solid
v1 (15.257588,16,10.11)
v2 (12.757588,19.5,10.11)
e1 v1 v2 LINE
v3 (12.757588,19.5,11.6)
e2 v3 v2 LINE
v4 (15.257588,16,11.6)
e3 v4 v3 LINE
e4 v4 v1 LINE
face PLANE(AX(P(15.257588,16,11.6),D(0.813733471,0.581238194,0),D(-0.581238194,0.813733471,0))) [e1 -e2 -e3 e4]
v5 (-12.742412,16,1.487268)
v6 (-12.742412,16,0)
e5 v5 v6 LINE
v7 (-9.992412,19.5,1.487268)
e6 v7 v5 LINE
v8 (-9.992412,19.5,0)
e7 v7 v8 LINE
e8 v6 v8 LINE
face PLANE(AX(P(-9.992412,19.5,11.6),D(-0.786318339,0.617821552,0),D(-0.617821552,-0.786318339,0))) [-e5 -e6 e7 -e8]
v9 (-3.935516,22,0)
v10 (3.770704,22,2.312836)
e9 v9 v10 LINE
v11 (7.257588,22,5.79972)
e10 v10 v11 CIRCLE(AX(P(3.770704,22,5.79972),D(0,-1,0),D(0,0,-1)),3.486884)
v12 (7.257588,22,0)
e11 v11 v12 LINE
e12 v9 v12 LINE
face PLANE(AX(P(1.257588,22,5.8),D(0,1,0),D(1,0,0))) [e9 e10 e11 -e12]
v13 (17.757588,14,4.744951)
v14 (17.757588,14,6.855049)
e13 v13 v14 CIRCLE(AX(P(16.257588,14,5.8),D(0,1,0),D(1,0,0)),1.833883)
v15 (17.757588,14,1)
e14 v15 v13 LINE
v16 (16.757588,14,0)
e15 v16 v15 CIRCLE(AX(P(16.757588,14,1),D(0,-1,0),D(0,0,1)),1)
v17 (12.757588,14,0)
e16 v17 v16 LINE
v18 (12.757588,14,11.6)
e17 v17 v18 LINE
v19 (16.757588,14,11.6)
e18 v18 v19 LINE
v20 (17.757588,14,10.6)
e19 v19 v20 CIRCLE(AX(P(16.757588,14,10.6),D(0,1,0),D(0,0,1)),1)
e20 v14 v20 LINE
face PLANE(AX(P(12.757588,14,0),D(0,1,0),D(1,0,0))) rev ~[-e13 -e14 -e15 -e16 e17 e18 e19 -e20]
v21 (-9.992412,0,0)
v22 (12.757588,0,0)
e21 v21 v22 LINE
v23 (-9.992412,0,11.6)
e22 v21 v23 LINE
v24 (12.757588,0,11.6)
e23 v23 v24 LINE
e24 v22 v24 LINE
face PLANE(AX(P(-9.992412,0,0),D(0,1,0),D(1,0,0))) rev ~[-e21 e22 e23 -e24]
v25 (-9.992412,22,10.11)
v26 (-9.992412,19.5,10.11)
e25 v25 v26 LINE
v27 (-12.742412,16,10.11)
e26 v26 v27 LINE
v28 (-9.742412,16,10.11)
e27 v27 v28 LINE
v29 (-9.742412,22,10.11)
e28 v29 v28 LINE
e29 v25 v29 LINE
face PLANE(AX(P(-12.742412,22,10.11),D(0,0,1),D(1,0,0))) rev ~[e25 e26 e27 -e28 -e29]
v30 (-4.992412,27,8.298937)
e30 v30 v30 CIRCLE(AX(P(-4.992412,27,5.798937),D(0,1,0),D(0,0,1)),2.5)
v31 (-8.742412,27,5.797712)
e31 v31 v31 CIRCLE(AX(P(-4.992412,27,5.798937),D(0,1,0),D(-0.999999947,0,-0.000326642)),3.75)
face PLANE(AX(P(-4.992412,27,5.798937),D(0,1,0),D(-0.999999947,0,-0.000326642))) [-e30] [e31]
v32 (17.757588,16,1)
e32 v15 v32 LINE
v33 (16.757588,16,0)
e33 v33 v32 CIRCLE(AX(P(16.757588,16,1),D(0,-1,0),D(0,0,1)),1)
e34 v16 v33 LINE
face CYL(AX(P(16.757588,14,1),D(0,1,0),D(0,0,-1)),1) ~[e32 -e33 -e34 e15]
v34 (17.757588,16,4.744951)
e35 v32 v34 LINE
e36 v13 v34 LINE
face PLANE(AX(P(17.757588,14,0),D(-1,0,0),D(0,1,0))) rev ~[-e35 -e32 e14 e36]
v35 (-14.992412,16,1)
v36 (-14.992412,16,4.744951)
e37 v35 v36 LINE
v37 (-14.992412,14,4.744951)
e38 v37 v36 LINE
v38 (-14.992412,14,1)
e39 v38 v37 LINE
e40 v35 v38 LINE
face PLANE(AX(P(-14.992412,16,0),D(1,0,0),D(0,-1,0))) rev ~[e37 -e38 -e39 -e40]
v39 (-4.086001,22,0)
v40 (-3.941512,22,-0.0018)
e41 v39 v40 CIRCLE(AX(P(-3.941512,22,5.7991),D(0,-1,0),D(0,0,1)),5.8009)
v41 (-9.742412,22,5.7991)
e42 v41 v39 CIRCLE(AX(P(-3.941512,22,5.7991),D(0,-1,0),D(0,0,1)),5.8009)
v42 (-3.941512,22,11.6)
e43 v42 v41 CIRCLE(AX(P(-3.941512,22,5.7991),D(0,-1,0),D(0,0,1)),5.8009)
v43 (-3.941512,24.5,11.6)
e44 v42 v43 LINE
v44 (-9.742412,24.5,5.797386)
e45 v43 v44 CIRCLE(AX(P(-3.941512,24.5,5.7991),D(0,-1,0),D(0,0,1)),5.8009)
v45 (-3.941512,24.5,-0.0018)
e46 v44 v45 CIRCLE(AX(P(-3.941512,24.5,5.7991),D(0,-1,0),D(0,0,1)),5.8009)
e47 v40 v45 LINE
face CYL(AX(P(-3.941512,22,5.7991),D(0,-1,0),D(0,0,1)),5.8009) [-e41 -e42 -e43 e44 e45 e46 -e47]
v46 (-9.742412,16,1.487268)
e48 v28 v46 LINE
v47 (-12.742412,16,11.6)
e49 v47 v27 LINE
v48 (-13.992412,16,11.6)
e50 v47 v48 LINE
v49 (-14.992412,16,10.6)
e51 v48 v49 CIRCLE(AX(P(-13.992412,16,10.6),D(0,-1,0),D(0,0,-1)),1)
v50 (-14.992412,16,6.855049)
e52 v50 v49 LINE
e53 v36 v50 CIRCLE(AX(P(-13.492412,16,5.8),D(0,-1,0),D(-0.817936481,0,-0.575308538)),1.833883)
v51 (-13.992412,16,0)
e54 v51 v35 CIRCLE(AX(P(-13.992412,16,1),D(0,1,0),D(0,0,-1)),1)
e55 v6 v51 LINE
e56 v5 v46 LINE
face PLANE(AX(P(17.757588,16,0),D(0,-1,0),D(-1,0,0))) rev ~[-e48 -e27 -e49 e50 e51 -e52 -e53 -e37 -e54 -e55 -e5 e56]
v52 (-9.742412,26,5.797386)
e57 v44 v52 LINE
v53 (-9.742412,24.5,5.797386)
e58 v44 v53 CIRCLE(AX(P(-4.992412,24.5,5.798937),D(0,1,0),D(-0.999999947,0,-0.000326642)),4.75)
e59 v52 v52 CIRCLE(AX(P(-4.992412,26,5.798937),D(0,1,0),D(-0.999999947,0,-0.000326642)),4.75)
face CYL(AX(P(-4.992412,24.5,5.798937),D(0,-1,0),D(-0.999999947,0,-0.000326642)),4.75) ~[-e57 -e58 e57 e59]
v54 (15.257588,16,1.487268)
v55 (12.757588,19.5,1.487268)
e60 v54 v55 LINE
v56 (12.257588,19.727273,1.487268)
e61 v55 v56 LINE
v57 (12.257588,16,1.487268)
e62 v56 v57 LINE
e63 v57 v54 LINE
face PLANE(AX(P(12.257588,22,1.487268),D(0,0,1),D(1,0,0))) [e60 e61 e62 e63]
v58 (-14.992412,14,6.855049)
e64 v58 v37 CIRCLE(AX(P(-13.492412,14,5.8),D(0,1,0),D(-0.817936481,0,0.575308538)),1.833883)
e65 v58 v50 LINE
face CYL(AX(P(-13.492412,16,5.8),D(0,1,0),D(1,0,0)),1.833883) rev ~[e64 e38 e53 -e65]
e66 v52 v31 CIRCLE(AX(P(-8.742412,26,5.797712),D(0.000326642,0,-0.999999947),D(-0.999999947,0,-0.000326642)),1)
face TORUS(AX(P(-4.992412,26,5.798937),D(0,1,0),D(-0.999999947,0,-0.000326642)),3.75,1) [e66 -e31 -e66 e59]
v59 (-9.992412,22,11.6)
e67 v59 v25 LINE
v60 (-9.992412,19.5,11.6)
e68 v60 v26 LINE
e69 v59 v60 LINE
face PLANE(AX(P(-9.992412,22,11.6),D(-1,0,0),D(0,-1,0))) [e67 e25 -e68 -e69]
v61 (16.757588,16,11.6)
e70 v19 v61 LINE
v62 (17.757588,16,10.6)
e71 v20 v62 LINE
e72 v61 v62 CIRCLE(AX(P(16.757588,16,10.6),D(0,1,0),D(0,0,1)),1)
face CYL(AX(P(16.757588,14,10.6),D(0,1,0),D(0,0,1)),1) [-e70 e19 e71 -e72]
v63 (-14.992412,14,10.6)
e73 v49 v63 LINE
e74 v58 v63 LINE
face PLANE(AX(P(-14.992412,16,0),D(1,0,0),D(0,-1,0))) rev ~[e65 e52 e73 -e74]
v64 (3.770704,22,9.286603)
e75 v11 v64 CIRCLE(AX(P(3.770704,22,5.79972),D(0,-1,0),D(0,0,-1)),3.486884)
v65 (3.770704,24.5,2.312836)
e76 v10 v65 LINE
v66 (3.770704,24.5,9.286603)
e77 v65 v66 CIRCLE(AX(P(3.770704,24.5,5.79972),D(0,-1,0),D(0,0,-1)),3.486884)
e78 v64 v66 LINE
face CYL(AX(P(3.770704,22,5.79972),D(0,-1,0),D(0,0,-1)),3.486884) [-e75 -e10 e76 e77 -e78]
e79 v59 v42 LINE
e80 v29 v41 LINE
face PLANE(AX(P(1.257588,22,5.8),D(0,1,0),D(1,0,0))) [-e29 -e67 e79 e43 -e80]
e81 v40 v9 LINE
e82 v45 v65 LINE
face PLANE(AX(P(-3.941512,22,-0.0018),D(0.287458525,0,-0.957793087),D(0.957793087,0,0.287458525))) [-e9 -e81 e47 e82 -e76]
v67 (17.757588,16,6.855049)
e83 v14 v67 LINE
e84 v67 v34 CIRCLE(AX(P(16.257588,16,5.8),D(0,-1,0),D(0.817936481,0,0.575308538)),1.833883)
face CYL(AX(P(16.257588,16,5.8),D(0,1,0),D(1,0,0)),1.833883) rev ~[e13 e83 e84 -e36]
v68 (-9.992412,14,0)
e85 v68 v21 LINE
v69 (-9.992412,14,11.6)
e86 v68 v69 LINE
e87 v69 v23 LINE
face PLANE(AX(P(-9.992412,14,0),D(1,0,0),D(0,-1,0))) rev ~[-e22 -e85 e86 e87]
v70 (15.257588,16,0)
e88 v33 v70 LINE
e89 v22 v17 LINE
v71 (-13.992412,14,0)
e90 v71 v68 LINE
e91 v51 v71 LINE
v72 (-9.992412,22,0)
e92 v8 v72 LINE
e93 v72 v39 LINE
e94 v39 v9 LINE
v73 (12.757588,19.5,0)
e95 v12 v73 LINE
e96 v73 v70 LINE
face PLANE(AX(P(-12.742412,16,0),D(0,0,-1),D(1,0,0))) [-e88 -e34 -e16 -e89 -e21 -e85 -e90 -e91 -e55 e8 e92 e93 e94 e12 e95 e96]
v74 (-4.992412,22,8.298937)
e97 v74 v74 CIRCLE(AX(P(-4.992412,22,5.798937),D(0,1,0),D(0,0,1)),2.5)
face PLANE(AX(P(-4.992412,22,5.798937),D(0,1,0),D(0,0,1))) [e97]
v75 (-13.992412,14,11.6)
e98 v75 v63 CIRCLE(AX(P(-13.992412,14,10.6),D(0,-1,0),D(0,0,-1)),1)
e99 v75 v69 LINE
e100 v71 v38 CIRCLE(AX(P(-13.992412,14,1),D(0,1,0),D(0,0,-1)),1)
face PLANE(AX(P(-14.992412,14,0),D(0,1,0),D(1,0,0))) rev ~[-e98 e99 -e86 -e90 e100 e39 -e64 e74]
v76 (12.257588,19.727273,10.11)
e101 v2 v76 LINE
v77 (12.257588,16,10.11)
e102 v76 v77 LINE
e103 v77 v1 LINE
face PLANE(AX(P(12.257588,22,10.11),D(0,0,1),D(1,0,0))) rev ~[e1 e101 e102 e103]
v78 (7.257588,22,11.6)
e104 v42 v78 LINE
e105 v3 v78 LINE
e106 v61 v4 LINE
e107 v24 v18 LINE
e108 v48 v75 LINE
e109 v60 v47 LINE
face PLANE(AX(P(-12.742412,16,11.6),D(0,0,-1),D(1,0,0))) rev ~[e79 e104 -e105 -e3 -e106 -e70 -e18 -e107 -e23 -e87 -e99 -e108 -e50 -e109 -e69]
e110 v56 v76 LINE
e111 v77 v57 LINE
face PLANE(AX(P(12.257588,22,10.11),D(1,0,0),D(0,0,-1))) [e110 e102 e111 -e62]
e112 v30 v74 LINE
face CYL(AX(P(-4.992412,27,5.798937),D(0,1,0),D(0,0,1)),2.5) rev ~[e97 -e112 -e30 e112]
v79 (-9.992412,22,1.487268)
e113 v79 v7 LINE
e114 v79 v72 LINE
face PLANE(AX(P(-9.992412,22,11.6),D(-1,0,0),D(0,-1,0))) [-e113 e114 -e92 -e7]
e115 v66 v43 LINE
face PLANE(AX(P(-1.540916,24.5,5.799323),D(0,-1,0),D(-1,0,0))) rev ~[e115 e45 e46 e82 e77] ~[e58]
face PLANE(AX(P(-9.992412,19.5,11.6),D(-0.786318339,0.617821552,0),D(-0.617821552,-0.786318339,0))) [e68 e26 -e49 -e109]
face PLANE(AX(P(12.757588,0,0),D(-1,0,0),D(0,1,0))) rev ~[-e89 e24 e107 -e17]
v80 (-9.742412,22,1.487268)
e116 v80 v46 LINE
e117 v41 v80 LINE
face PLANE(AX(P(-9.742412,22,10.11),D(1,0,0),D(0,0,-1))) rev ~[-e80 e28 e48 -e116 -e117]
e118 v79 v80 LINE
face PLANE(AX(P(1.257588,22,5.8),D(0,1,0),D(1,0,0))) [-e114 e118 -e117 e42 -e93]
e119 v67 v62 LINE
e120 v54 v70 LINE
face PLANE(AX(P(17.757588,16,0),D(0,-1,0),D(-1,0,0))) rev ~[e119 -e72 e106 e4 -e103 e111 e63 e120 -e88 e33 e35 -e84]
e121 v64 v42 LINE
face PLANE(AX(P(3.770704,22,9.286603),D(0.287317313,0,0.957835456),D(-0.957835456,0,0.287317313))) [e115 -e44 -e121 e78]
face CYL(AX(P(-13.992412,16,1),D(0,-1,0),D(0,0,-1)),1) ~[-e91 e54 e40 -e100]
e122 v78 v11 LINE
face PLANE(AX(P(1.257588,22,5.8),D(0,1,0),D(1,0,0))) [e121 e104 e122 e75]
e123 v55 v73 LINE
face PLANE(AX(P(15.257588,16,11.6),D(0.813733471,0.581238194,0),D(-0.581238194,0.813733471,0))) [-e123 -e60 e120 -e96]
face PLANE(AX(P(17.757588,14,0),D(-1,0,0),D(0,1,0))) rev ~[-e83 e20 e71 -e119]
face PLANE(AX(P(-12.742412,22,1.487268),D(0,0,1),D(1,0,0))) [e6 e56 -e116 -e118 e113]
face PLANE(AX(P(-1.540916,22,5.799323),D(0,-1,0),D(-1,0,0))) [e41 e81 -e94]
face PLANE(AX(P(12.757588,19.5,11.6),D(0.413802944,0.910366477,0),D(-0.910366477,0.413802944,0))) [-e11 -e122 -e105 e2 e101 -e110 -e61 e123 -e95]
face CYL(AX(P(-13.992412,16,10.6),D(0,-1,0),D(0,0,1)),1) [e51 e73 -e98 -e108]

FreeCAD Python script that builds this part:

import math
import FreeCAD as App
import Part
import Sketcher
from FreeCAD import Vector
Q = App.Units.Quantity


def edges_at(feature, points):
    """Names of the edges that pass closest to the given points."""
    edges = feature.Shape.Edges
    near = lambda p: min(range(len(edges)), key=lambda i: edges[i].distToShape(Part.Vertex(*p))[0])
    return sorted({f"Edge{near(p) + 1}" for p in points})


def add_polygon(sketch, points):
    """Adds a closed chain of lines whose ends are joined by coincident constraints."""
    first, n = sketch.GeometryCount, len(points)
    for a, b in zip(points, points[1:] + points[:1]):
        sketch.addGeometry(Part.LineSegment(App.Vector(*a, 0), App.Vector(*b, 0)), False)
    for i in range(n):
        sketch.addConstraint(Sketcher.Constraint("Coincident", first + i, 2, first + (i + 1) % n, 1))

doc = App.newDocument("Part")
params = doc.addObject("Spreadsheet::Sheet", "Params")
for row, (alias, value) in enumerate([
    ("sketch1_width", "5 mm"),
    ("sketch1_height", "14 mm"),
    ("sketch1_height2", "2 mm"),
    ("sketch1_width2", "22.75 mm"),
    ("pad1_length", "11.6 mm"),
    ("pocket1_length", "11.6 mm"),
    ("sketch3_width", "28 mm"),
    ("sketch3_height", "11.6 mm"),
    ("pad2_length", "6 mm"),
    ("sketch4_width", "3 mm"),
    ("pocket2_length", "6 mm"),
    ("sketch5_width", "8 mm"),
    ("sketch5_height", "6 mm"),
    ("sketch5_height2", "2.5 mm"),
    ("sketch5_width2", "2.75 mm"),
    ("pocket3_length", "12 mm"),
    ("pad3_length", "2.5 mm"),
    ("sketch7_diameter", "9.5 mm"),
    ("pad4_length", "2.5 mm"),
    ("sketch8_diameter", "5 mm"),
    ("pocket4_length", "5 mm"),
    ("fillet_radius", "1 mm"),
], start=1):
    params.set(f"A{row}", alias)
    params.set(f"B{row}", "=" + value)
    params.setAlias(f"B{row}", alias)

body = doc.addObject("PartDesign::Body", "Body")

# Sketch on XY plane
sketch1 = body.newObject("Sketcher::SketchObject", "Sketch")
sketch1.AttachmentSupport = (doc.getObject("XY_Plane"), [""])
sketch1.MapMode = "FlatFace"
add_polygon(sketch1, [(-9.992412, 0), (12.757588, 0), (12.757588, 14), (17.757588, 14), (17.757588, 16), (-14.992412, 16), (-14.992412, 14), (-9.992412, 14)])  # lines 0-7
sketch1.addConstraint([
    Sketcher.Constraint("Horizontal", 0),
    Sketcher.Constraint("Vertical", 1),
    Sketcher.Constraint("Horizontal", 2),
    Sketcher.Constraint("Vertical", 3),
    Sketcher.Constraint("Horizontal", 4),
    Sketcher.Constraint("Vertical", 5),
    Sketcher.Constraint("Horizontal", 6),
    Sketcher.Constraint("Vertical", 7),
    Sketcher.Constraint("PointOnObject", 0, 2, -1),
    Sketcher.Constraint("Horizontal", 2, 2, 5, 2),
    Sketcher.Constraint("Equal", 2, 6),
    Sketcher.Constraint("DistanceX", 2, 1, 2, 2, Q("5 mm")),
    Sketcher.Constraint("DistanceY", 1, 1, 1, 2, Q("14 mm")),
    Sketcher.Constraint("DistanceY", 3, 1, 3, 2, Q("2 mm")),
    Sketcher.Constraint("DistanceX", 0, 1, 0, 2, Q("22.75 mm")),
    Sketcher.Constraint("DistanceX", -1, 1, 0, 2, Q("12.757588 mm")),
])
sketch1.setExpression("Constraints[19]", "Params.sketch1_width")
sketch1.setExpression("Constraints[20]", "Params.sketch1_height")
sketch1.setExpression("Constraints[21]", "Params.sketch1_height2")
sketch1.setExpression("Constraints[22]", "Params.sketch1_width2")
pad1 = body.newObject("PartDesign::Pad", "Pad")
pad1.Profile = sketch1
pad1.setExpression("Length", "Params.pad1_length")

# Sketch on XZ plane
sketch2 = body.newObject("Sketcher::SketchObject", "Sketch001")
sketch2.AttachmentSupport = (doc.getObject("XZ_Plane"), [""])
sketch2.MapMode = "FlatFace"
sketch2.AttachmentOffset = App.Placement(Vector(0, 0, -16), App.Rotation())
sketch2.addGeometry([
    Part.Circle(Vector(-13.492412, 5.8, 0), Vector(0, 0, 1), 1.833883),
    Part.Circle(Vector(16.257588, 5.8, 0), Vector(0, 0, 1), 1.833883),
], False)
sketch2.addConstraint([
    Sketcher.Constraint("Equal", 0, 1),
    Sketcher.Constraint("Horizontal", 0, 3, 1, 3),
    Sketcher.Constraint("DistanceY", -1, 1, 0, 3, Q("5.8 mm")),
    Sketcher.Constraint("DistanceX", 0, 3, 1, 3, Q("29.75 mm")),
    Sketcher.Constraint("Diameter", 0, Q("3.667766 mm")),
    Sketcher.Constraint("DistanceX", 0, 3, -1, 1, Q("13.492412 mm")),
])
pocket1 = body.newObject("PartDesign::Pocket", "Pocket")
pocket1.Profile = sketch2
pocket1.setExpression("Length", "Params.pocket1_length")
pocket1.Reversed = True

# Sketch on XZ plane
sketch3 = body.newObject("Sketcher::SketchObject", "Sketch002")
sketch3.AttachmentSupport = (doc.getObject("XZ_Plane"), [""])
sketch3.MapMode = "FlatFace"
sketch3.AttachmentOffset = App.Placement(Vector(0, 0, -16), App.Rotation())
add_polygon(sketch3, [(-12.742412, 0), (-12.742412, 11.6), (15.257588, 11.6), (15.257588, 0)])  # lines 0-3
sketch3.addConstraint([
    Sketcher.Constraint("Vertical", 0),
    Sketcher.Constraint("Horizontal", 1),
    Sketcher.Constraint("Vertical", 2),
    Sketcher.Constraint("Horizontal", 3),
    Sketcher.Constraint("PointOnObject", 2, 2, -1),
    Sketcher.Constraint("DistanceX", 1, 1, 1, 2, Q("28 mm")),
    Sketcher.Constraint("DistanceY", 0, 1, 0, 2, Q("11.6 mm")),
    Sketcher.Constraint("DistanceX", 0, 2, -1, 1, Q("12.742412 mm")),
])
sketch3.setExpression("Constraints[9]", "Params.sketch3_width")
sketch3.setExpression("Constraints[10]", "Params.sketch3_height")
pad2 = body.newObject("PartDesign::Pad", "Pad001")
pad2.Profile = sketch3
pad2.setExpression("Length", "Params.pad2_length")
pad2.Reversed = True

# Sketch on XZ plane
sketch4 = body.newObject("Sketcher::SketchObject", "Sketch003")
sketch4.AttachmentSupport = (doc.getObject("XZ_Plane"), [""])
sketch4.MapMode = "FlatFace"
sketch4.AttachmentOffset = App.Placement(Vector(0, 0, -22), App.Rotation())
add_polygon(sketch4, [(-12.742412, 1.487268), (-12.742412, 10.11), (-9.742412, 10.11), (-9.742412, 1.487268)])  # lines 0-3
add_polygon(sketch4, [(12.257588, 1.487268), (12.257588, 10.11), (15.257588, 10.11), (15.257588, 1.487268)])  # lines 4-7
sketch4.addConstraint([
    Sketcher.Constraint("Vertical", 0),
    Sketcher.Constraint("Horizontal", 1),
    Sketcher.Constraint("Vertical", 2),
    Sketcher.Constraint("Horizontal", 3),
    Sketcher.Constraint("Vertical", 4),
    Sketcher.Constraint("Horizontal", 5),
    Sketcher.Constraint("Vertical", 6),
    Sketcher.Constraint("Horizontal", 7),
    Sketcher.Constraint("Horizontal", 1, 2, 4, 2),
    Sketcher.Constraint("Horizontal", 3, 2, 6, 2),
    Sketcher.Constraint("Equal", 3, 5),
    Sketcher.Constraint("DistanceX", 1, 1, 1, 2, Q("3 mm")),
    Sketcher.Constraint("DistanceX", 1, 2, 4, 2, Q("22 mm")),
    Sketcher.Constraint("DistanceY", -1, 1, 0, 2, Q("10.11 mm")),
    Sketcher.Constraint("DistanceY", 0, 1, 0, 2, Q("8.622732 mm")),
    Sketcher.Constraint("DistanceX", 0, 2, -1, 1, Q("12.742412 mm")),
])
sketch4.setExpression("Constraints[19]", "Params.sketch4_width")
pocket2 = body.newObject("PartDesign::Pocket", "Pocket001")
pocket2.Profile = sketch4
pocket2.setExpression("Length", "Params.pocket2_length")
pocket2.Reversed = True

# Sketch on XY plane
sketch5 = body.newObject("Sketcher::SketchObject", "Sketch004")
sketch5.AttachmentSupport = (doc.getObject("XY_Plane"), [""])
sketch5.MapMode = "FlatFace"
sketch5.AttachmentOffset = App.Placement(Vector(0, 0, 11.6), App.Rotation())
add_polygon(sketch5, [(-9.992412, 19.5), (-9.992412, 22), (-12.742412, 22), (-12.742412, 16)])  # lines 0-3
add_polygon(sketch5, [(12.757588, 19.5), (15.257588, 16), (15.257588, 22), (7.257588, 22)])  # lines 4-7
sketch5.addConstraint([
    Sketcher.Constraint("Vertical", 0),
    Sketcher.Constraint("Horizontal", 1),
    Sketcher.Constraint("Vertical", 2),
    Sketcher.Constraint("Vertical", 5),
    Sketcher.Constraint("Horizontal", 6),
    Sketcher.Constraint("Horizontal", 2, 2, 4, 2),
    Sketcher.Constraint("Horizontal", 1, 2, 5, 2),
    Sketcher.Constraint("Horizontal", 3, 2, 7, 2),
    Sketcher.Constraint("DistanceX", 6, 2, 6, 1, Q("8 mm")),
    Sketcher.Constraint("DistanceY", 2, 2, 2, 1, Q("6 mm")),
    Sketcher.Constraint("DistanceY", 0, 1, 0, 2, Q("2.5 mm")),
    Sketcher.Constraint("DistanceY", -1, 1, 0, 2, Q("22 mm")),
    Sketcher.Constraint("DistanceX", 2, 2, 4, 2, Q("28 mm")),
    Sketcher.Constraint("DistanceX", 1, 2, 1, 1, Q("2.75 mm")),
    Sketcher.Constraint("DistanceX", 7, 2, 5, 2, Q("2.5 mm")),
    Sketcher.Constraint("DistanceX", 0, 2, -1, 1, Q("9.992412 mm")),
])
sketch5.setExpression("Constraints[16]", "Params.sketch5_width")
sketch5.setExpression("Constraints[17]", "Params.sketch5_height")
sketch5.setExpression("Constraints[18]", "Params.sketch5_height2")
sketch5.setExpression("Constraints[21]", "Params.sketch5_width2")
pocket3 = body.newObject("PartDesign::Pocket", "Pocket002")
pocket3.Profile = sketch5
pocket3.setExpression("Length", "Params.pocket3_length")

# Sketch on XZ plane
sketch6 = body.newObject("Sketcher::SketchObject", "Sketch005")
sketch6.AttachmentSupport = (doc.getObject("XZ_Plane"), [""])
sketch6.MapMode = "FlatFace"
sketch6.AttachmentOffset = App.Placement(Vector(0, 0, -22), App.Rotation())
sketch6.addGeometry([
    Part.LineSegment(Vector(3.770704, 2.312836, 0), Vector(-3.941512, -0.0018, 0)),
    Part.ArcOfCircle(Part.Circle(Vector(-3.941512, 5.7991, 0), Vector(0, 0, 1), 5.8009), math.radians(90), math.radians(270)),
    Part.LineSegment(Vector(-3.941512, 11.6, 0), Vector(3.770704, 9.286603, 0)),
    Part.ArcOfCircle(Part.Circle(Vector(3.770704, 5.79972, 0), Vector(0, 0, 1), 3.486884), math.radians(-90), math.radians(90)),
], False)
sketch6.addConstraint([
    Sketcher.Constraint("Coincident", 0, 2, 1, 2),
    Sketcher.Constraint("Coincident", 1, 1, 2, 1),
    Sketcher.Constraint("Coincident", 2, 2, 3, 2),
    Sketcher.Constraint("Coincident", 3, 1, 0, 1),
    Sketcher.Constraint("Vertical", 1, 3, 0, 2),
    Sketcher.Constraint("Vertical", 0, 2, 1, 1),
    Sketcher.Constraint("Vertical", 3, 3, 2, 2),
    Sketcher.Constraint("Vertical", 2, 2, 3, 1),
    Sketcher.Constraint("DistanceY", -1, 1, 1, 1, Q("11.6 mm")),
    Sketcher.Constraint("Radius", 1, Q("5.8009 mm")),
    Sketcher.Constraint("Radius", 3, Q("3.486884 mm")),
    Sketcher.Constraint("Distance", 0, Q("8.05207 mm")),
    Sketcher.Constraint("DistanceY", -1, 1, 3, 3, Q("5.79972 mm")),
    Sketcher.Constraint("DistanceX", 1, 3, -1, 1, Q("3.941512 mm")),
])
pad3 = body.newObject("PartDesign::Pad", "Pad002")
pad3.Profile = sketch6
pad3.setExpression("Length", "Params.pad3_length")
pad3.Reversed = True

# Sketch on XZ plane
sketch7 = body.newObject("Sketcher::SketchObject", "Sketch006")
sketch7.AttachmentSupport = (doc.getObject("XZ_Plane"), [""])
sketch7.MapMode = "FlatFace"
sketch7.AttachmentOffset = App.Placement(Vector(0, 0, -24.5), App.Rotation())
sketch7.addGeometry(Part.Circle(Vector(-4.992412, 5.798937, 0), Vector(0, 0, 1), 4.75), False)
sketch7.addConstraint([
    Sketcher.Constraint("Diameter", 0, Q("9.5 mm")),
    Sketcher.Constraint("DistanceX", 0, 3, -1, 1, Q("4.992412 mm")),
    Sketcher.Constraint("DistanceY", -1, 1, 0, 3, Q("5.798937 mm")),
])
sketch7.setExpression("Constraints[0]", "Params.sketch7_diameter")
pad4 = body.newObject("PartDesign::Pad", "Pad003")
pad4.Profile = sketch7
pad4.setExpression("Length", "Params.pad4_length")
pad4.Reversed = True

# Sketch on XZ plane
sketch8 = body.newObject("Sketcher::SketchObject", "Sketch007")
sketch8.AttachmentSupport = (doc.getObject("XZ_Plane"), [""])
sketch8.MapMode = "FlatFace"
sketch8.AttachmentOffset = App.Placement(Vector(0, 0, -27), App.Rotation())
sketch8.addGeometry(Part.Circle(Vector(-4.992412, 5.798937, 0), Vector(0, 0, 1), 2.5), False)
sketch8.addConstraint([
    Sketcher.Constraint("Diameter", 0, Q("5 mm")),
    Sketcher.Constraint("DistanceX", 0, 3, -1, 1, Q("4.992412 mm")),
    Sketcher.Constraint("DistanceY", -1, 1, 0, 3, Q("5.798937 mm")),
])
sketch8.setExpression("Constraints[0]", "Params.sketch8_diameter")
pocket4 = body.newObject("PartDesign::Pocket", "Pocket003")
pocket4.Profile = sketch8
pocket4.setExpression("Length", "Params.pocket4_length")
pocket4.Reversed = True
doc.recompute()

fillet = body.newObject("PartDesign::Fillet", "Fillet")
fillet.Base = (pocket4, edges_at(pocket4, [
    (17.758, 15, 11.6),
    (-0.242, 27, 5.8),
    (-14.992, 15, 11.6),
    (-14.992, 15, 0),
    (17.758, 15, 0),
]))
fillet.setExpression("Radius", "Params.fillet_radius")

doc.recompute()
